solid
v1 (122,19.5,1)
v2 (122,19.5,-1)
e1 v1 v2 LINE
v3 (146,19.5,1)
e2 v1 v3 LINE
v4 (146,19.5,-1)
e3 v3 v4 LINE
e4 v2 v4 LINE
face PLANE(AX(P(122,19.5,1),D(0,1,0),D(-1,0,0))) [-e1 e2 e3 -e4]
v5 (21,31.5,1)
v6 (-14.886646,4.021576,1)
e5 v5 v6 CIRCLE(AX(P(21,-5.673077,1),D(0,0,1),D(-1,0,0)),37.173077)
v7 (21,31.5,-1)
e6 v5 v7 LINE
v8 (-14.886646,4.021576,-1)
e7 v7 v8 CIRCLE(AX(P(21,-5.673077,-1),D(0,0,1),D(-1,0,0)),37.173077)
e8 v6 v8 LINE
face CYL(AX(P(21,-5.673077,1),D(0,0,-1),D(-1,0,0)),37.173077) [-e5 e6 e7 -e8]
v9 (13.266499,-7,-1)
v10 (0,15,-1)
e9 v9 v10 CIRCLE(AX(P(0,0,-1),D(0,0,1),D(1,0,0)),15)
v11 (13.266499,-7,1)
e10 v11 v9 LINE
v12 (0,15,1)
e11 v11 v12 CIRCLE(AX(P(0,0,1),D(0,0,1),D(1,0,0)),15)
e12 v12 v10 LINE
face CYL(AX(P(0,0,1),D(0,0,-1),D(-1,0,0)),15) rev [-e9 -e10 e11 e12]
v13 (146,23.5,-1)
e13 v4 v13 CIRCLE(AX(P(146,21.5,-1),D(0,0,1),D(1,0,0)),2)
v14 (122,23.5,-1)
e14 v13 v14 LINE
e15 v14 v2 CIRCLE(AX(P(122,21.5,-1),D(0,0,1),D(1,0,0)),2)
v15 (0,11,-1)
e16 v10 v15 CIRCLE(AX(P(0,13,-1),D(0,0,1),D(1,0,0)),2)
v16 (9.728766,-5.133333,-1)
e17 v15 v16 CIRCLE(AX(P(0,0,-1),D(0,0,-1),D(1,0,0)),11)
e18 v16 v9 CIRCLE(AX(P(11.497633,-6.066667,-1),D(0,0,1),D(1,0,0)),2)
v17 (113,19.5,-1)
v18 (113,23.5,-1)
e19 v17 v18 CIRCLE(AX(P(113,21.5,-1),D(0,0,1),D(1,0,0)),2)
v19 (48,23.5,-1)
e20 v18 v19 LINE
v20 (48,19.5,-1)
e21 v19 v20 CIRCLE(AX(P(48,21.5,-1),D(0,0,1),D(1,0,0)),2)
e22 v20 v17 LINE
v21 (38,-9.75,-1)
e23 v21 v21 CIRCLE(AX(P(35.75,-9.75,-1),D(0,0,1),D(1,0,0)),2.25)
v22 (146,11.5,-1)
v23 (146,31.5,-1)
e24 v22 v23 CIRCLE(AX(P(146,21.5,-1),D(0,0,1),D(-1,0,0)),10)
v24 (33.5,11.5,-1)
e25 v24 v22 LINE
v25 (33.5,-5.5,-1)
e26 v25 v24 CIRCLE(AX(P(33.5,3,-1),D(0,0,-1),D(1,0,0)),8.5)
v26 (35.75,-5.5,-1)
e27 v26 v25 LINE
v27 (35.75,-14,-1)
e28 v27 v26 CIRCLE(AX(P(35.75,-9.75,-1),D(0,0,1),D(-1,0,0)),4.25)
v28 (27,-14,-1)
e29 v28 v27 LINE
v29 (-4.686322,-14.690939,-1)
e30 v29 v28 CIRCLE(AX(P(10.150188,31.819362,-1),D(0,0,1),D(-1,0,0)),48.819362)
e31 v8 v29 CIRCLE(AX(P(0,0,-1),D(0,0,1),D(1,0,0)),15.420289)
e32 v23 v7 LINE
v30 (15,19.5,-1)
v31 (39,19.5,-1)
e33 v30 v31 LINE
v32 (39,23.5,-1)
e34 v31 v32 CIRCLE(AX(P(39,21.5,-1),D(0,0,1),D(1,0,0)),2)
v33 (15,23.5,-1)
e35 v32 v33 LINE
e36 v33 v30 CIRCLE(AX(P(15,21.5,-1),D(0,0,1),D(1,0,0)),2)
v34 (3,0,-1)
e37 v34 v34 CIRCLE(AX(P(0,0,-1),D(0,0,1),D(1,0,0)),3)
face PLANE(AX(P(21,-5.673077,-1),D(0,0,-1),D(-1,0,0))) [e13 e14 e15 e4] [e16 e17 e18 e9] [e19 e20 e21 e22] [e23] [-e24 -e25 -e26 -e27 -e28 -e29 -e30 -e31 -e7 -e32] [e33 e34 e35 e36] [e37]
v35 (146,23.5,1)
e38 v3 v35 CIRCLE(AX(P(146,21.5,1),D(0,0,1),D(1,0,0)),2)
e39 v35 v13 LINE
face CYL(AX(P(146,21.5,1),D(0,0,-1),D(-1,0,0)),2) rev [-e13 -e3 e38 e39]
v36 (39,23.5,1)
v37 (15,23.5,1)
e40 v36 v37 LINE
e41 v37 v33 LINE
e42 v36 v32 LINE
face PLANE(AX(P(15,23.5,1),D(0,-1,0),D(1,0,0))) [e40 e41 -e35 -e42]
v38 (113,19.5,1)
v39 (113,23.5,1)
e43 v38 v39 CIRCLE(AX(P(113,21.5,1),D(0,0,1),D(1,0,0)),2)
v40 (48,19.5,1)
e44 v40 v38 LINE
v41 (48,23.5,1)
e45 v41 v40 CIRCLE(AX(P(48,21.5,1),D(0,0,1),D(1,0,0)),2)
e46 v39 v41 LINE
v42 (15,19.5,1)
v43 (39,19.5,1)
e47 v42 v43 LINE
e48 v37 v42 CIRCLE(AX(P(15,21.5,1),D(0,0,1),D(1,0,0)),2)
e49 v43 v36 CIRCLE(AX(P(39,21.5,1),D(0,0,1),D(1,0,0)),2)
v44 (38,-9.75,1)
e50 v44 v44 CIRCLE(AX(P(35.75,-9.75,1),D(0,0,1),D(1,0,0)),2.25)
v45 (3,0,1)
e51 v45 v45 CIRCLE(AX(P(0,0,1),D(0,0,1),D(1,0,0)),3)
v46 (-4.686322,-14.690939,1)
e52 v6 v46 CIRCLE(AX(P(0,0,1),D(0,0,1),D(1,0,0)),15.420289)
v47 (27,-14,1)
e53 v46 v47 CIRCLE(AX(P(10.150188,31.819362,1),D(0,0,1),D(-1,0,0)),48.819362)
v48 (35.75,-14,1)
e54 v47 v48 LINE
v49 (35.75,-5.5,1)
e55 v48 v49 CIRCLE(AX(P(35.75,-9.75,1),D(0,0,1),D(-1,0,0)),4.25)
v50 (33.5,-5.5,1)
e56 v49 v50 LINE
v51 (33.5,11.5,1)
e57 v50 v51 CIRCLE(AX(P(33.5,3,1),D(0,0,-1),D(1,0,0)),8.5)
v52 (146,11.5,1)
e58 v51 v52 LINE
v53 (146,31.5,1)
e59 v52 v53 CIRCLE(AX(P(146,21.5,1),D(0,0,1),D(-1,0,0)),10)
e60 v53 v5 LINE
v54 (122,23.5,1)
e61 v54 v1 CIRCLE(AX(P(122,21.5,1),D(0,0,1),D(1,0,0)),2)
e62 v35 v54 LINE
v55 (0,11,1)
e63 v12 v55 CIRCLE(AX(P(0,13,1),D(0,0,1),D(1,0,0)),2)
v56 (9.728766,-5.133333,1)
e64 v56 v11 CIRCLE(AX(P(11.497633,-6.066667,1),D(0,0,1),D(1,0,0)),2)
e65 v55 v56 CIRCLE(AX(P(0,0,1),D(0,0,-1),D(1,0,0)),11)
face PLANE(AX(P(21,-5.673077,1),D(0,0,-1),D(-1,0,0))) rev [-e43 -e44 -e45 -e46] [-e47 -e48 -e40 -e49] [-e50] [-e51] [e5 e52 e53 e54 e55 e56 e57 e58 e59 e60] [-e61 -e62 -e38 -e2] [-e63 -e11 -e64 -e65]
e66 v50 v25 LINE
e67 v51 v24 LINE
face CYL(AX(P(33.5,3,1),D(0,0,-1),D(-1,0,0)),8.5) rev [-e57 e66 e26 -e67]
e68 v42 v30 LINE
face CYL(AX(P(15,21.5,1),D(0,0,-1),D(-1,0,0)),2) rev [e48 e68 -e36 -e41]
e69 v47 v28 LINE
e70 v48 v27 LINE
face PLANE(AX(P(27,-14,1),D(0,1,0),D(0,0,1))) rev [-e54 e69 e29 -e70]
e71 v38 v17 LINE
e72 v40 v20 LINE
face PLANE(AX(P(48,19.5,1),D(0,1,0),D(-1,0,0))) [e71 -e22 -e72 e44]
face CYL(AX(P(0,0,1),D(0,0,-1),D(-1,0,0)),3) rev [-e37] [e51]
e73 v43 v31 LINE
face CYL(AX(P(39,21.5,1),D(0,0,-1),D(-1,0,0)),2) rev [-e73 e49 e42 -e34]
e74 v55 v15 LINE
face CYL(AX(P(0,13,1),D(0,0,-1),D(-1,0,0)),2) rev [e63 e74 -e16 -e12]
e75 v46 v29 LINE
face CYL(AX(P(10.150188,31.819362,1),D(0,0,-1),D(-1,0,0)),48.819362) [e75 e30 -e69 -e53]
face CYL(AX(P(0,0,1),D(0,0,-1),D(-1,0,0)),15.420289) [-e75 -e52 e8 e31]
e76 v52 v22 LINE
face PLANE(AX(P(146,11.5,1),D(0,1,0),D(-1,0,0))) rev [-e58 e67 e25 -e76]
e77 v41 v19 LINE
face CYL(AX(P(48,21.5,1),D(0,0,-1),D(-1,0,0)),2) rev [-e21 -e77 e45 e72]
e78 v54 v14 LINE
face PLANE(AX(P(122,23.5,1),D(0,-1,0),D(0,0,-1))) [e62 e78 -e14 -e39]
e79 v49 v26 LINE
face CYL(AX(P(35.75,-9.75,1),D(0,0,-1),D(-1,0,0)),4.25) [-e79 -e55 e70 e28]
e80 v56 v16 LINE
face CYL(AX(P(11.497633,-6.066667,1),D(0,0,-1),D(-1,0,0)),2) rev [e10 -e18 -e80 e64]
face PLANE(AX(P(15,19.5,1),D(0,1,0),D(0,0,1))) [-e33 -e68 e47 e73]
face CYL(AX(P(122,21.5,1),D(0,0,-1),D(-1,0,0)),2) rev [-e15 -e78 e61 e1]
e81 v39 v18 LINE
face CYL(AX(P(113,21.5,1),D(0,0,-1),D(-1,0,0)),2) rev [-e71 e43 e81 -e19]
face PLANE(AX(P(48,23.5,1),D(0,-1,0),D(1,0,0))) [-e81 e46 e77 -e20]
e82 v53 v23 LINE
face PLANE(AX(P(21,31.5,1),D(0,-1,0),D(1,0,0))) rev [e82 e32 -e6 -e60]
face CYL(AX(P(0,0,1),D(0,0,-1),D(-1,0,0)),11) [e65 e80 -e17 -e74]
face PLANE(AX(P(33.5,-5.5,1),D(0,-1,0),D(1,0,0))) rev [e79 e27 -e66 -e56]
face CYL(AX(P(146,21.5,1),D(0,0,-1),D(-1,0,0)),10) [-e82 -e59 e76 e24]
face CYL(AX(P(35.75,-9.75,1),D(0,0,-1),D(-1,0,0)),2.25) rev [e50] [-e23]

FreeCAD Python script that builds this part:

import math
import FreeCAD as App
import Part
import Sketcher
from FreeCAD import Vector
Q = App.Units.Quantity

doc = App.newDocument("Part")
body = doc.addObject("PartDesign::Body", "Body")

sketch1 = body.newObject("Sketcher::SketchObject", "Sketch")
sketch1.AttachmentSupport = (doc.getObject("XY_Plane"), [""])
sketch1.MapMode = "FlatFace"
sketch1.addGeometry(Part.LineSegment(Vector(146, 31.5, 0), Vector(21, 31.5, 0)), False)
sketch1.addGeometry(Part.ArcOfCircle(Part.Circle(Vector(21, -5.7, 0), Vector(0, 0, 1), 37.2), math.radians(90), math.radians(165)), False)
sketch1.addGeometry(Part.ArcOfCircle(Part.Circle(Vector(0, 0, 0), Vector(0, 0, 1), 15.4), math.radians(165), math.radians(252)), False)
sketch1.addGeometry(Part.ArcOfCircle(Part.Circle(Vector(10.2, 31.8, 0), Vector(0, 0, 1), 48.8), math.radians(-108), math.radians(-70)), False)
sketch1.addGeometry(Part.LineSegment(Vector(27, -14, 0), Vector(35.8, -14, 0)), False)
sketch1.addGeometry(Part.ArcOfCircle(Part.Circle(Vector(35.8, -9.8, 0), Vector(0, 0, 1), 4.2), math.radians(-90), math.radians(90)), False)
sketch1.addGeometry(Part.LineSegment(Vector(35.8, -5.5, 0), Vector(33.5, -5.5, 0)), False)
sketch1.addGeometry(Part.ArcOfCircle(Part.Circle(Vector(33.5, 3, 0), Vector(0, 0, 1), 8.5), math.radians(90), math.radians(270)), False)
sketch1.addGeometry(Part.LineSegment(Vector(33.5, 11.5, 0), Vector(146, 11.5, 0)), False)
sketch1.addGeometry(Part.ArcOfCircle(Part.Circle(Vector(146, 21.5, 0), Vector(0, 0, 1), 10), math.radians(-90), math.radians(90)), False)
sketch1.addGeometry(Part.Circle(Vector(35.8, -9.8, 0), Vector(0, 0, 1), 2.2), False)
sketch1.addGeometry(Part.Circle(Vector(0, 0, 0), Vector(0, 0, 1), 3), False)
sketch1.addGeometry(Part.ArcOfCircle(Part.Circle(Vector(11.5, -6.1, 0), Vector(0, 0, 1), 2), math.radians(152), math.radians(332)), False)
sketch1.addGeometry(Part.ArcOfCircle(Part.Circle(Vector(0, 0, 0), Vector(0, 0, 1), 11), math.radians(-28), math.radians(90)), False)
sketch1.addGeometry(Part.ArcOfCircle(Part.Circle(Vector(0, 13, 0), Vector(0, 0, 1), 2), math.radians(90), math.radians(270)), False)
sketch1.addGeometry(Part.ArcOfCircle(Part.Circle(Vector(0, 0, 0), Vector(0, 0, 1), 15), math.radians(-28), math.radians(90)), False)
sketch1.addGeometry(Part.LineSegment(Vector(122, 23.5, 0), Vector(146, 23.5, 0)), False)
sketch1.addGeometry(Part.ArcOfCircle(Part.Circle(Vector(146, 21.5, 0), Vector(0, 0, 1), 2), math.radians(-90), math.radians(90)), False)
sketch1.addGeometry(Part.LineSegment(Vector(146, 19.5, 0), Vector(122, 19.5, 0)), False)
sketch1.addGeometry(Part.ArcOfCircle(Part.Circle(Vector(122, 21.5, 0), Vector(0, 0, 1), 2), math.radians(90), math.radians(270)), False)
sketch1.addGeometry(Part.LineSegment(Vector(48, 23.5, 0), Vector(113, 23.5, 0)), False)
sketch1.addGeometry(Part.ArcOfCircle(Part.Circle(Vector(113, 21.5, 0), Vector(0, 0, 1), 2), math.radians(-90), math.radians(90)), False)
sketch1.addGeometry(Part.LineSegment(Vector(113, 19.5, 0), Vector(48, 19.5, 0)), False)
sketch1.addGeometry(Part.ArcOfCircle(Part.Circle(Vector(48, 21.5, 0), Vector(0, 0, 1), 2), math.radians(90), math.radians(270)), False)
sketch1.addGeometry(Part.LineSegment(Vector(15, 23.5, 0), Vector(39, 23.5, 0)), False)
sketch1.addGeometry(Part.ArcOfCircle(Part.Circle(Vector(39, 21.5, 0), Vector(0, 0, 1), 2), math.radians(-90), math.radians(90)), False)
sketch1.addGeometry(Part.LineSegment(Vector(39, 19.5, 0), Vector(15, 19.5, 0)), False)
sketch1.addGeometry(Part.ArcOfCircle(Part.Circle(Vector(15, 21.5, 0), Vector(0, 0, 1), 2), math.radians(90), math.radians(270)), False)
sketch1.addConstraint(Sketcher.Constraint("Tangent", 0, 2, 1, 1))
sketch1.addConstraint(Sketcher.Constraint("Tangent", 1, 2, 2, 1))
sketch1.addConstraint(Sketcher.Constraint("Tangent", 2, 2, 3, 1))
sketch1.addConstraint(Sketcher.Constraint("Coincident", 3, 2, 4, 1))
sketch1.addConstraint(Sketcher.Constraint("Tangent", 4, 2, 5, 1))
sketch1.addConstraint(Sketcher.Constraint("Tangent", 5, 2, 6, 1))
sketch1.addConstraint(Sketcher.Constraint("Tangent", 6, 2, 7, 2))
sketch1.addConstraint(Sketcher.Constraint("Tangent", 7, 1, 8, 1))
sketch1.addConstraint(Sketcher.Constraint("Tangent", 8, 2, 9, 1))
sketch1.addConstraint(Sketcher.Constraint("Tangent", 9, 2, 0, 1))
sketch1.addConstraint(Sketcher.Constraint("Tangent", 12, 1, 13, 1))
sketch1.addConstraint(Sketcher.Constraint("Tangent", 13, 2, 14, 2))
sketch1.addConstraint(Sketcher.Constraint("Tangent", 14, 1, 15, 2))
sketch1.addConstraint(Sketcher.Constraint("Tangent", 15, 1, 12, 2))
sketch1.addConstraint(Sketcher.Constraint("Tangent", 16, 2, 17, 2))
sketch1.addConstraint(Sketcher.Constraint("Tangent", 17, 1, 18, 1))
sketch1.addConstraint(Sketcher.Constraint("Tangent", 18, 2, 19, 2))
sketch1.addConstraint(Sketcher.Constraint("Tangent", 19, 1, 16, 1))
sketch1.addConstraint(Sketcher.Constraint("Tangent", 20, 2, 21, 2))
sketch1.addConstraint(Sketcher.Constraint("Tangent", 21, 1, 22, 1))
sketch1.addConstraint(Sketcher.Constraint("Tangent", 22, 2, 23, 2))
sketch1.addConstraint(Sketcher.Constraint("Tangent", 23, 1, 20, 1))
sketch1.addConstraint(Sketcher.Constraint("Tangent", 24, 2, 25, 2))
sketch1.addConstraint(Sketcher.Constraint("Tangent", 25, 1, 26, 1))
sketch1.addConstraint(Sketcher.Constraint("Tangent", 26, 2, 27, 2))
sketch1.addConstraint(Sketcher.Constraint("Tangent", 27, 1, 24, 1))
sketch1.addConstraint(Sketcher.Constraint("Horizontal", 0))
sketch1.addConstraint(Sketcher.Constraint("Horizontal", 4))
sketch1.addConstraint(Sketcher.Constraint("Horizontal", 6))
sketch1.addConstraint(Sketcher.Constraint("Horizontal", 8))
sketch1.addConstraint(Sketcher.Constraint("Horizontal", 16))
sketch1.addConstraint(Sketcher.Constraint("Horizontal", 18))
sketch1.addConstraint(Sketcher.Constraint("Horizontal", 20))
sketch1.addConstraint(Sketcher.Constraint("Horizontal", 22))
sketch1.addConstraint(Sketcher.Constraint("Horizontal", 24))
sketch1.addConstraint(Sketcher.Constraint("Horizontal", 26))
sketch1.addConstraint(Sketcher.Constraint("Coincident", 2, 3, -1, 1))
sketch1.addConstraint(Sketcher.Constraint("Coincident", 11, 3, -1, 1))
sketch1.addConstraint(Sketcher.Constraint("Coincident", 13, 3, -1, 1))
sketch1.addConstraint(Sketcher.Constraint("Coincident", 15, 3, -1, 1))
sketch1.addConstraint(Sketcher.Constraint("Coincident", 10, 3, 5, 3))
sketch1.addConstraint(Sketcher.Constraint("Coincident", 17, 3, 9, 3))
sketch1.addConstraint(Sketcher.Constraint("Equal", 14, 17))
sketch1.addConstraint(Sketcher.Constraint("Equal", 19, 21))
sketch1.addConstraint(Sketcher.Constraint("Equal", 23, 25))
sketch1.addConstraint(Sketcher.Constraint("PointOnObject", 14, 3, -2))
sketch1.addConstraint(Sketcher.Constraint("Horizontal", 19, 3, 21, 3))
sketch1.addConstraint(Sketcher.Constraint("Horizontal", 23, 3, 25, 3))
sketch1.addConstraint(Sketcher.Constraint("Equal", 18, 24))
sketch1.addConstraint(Sketcher.Constraint("Diameter", 11, Q("6 mm")))
sketch1.addConstraint(Sketcher.Constraint("Radius", 9, Q("10 mm")))
sketch1.addConstraint(Sketcher.Constraint("Radius", 12, Q("2 mm")))
sketch1.addConstraint(Sketcher.Constraint("Radius", 13, Q("11 mm")))
sketch1.addConstraint(Sketcher.Constraint("Diameter", 10, Q("4.5 mm")))
sketch1.addConstraint(Sketcher.Constraint("Radius", 7, Q("8.5 mm")))
sketch1.addConstraint(Sketcher.Constraint("DistanceX", 0, 2, 0, 1, Q("125 mm")))
sketch1.addConstraint(Sketcher.Constraint("DistanceX", 16, 1, 16, 2, Q("24 mm")))
sketch1.addConstraint(Sketcher.Constraint("DistanceX", 20, 1, 20, 2, Q("65 mm")))
sketch1.addConstraint(Sketcher.Constraint("Radius", 5, Q("4.25 mm")))
sketch1.addConstraint(Sketcher.Constraint("DistanceX", 8, 1, 8, 2, Q("112.5 mm")))
sketch1.addConstraint(Sketcher.Constraint("DistanceX", -1, 1, 1, 3, Q("21 mm")))
sketch1.addConstraint(Sketcher.Constraint("DistanceY", -1, 1, 7, 3, Q("3 mm")))
sketch1.addConstraint(Sketcher.Constraint("DistanceX", -1, 1, 21, 3, Q("113 mm")))
sketch1.addConstraint(Sketcher.Constraint("DistanceX", -1, 1, 25, 3, Q("39 mm")))
sketch1.addConstraint(Sketcher.Constraint("DistanceX", -1, 1, 3, 2, Q("27 mm")))
sketch1.addConstraint(Sketcher.Constraint("DistanceY", 15, 1, -1, 1, Q("7 mm")))
sketch1.addConstraint(Sketcher.Constraint("DistanceX", 4, 1, 4, 2, Q("8.75 mm")))
sketch1.addConstraint(Sketcher.Constraint("Radius", 2, Q("15.420289 mm")))
sketch1.addConstraint(Sketcher.Constraint("Radius", 3, Q("48.819362 mm")))
pad1 = body.newObject("PartDesign::Pad", "Pad")
pad1.Profile = sketch1
pad1.Length = 2
pad1.Midplane = True

doc.recompute()
